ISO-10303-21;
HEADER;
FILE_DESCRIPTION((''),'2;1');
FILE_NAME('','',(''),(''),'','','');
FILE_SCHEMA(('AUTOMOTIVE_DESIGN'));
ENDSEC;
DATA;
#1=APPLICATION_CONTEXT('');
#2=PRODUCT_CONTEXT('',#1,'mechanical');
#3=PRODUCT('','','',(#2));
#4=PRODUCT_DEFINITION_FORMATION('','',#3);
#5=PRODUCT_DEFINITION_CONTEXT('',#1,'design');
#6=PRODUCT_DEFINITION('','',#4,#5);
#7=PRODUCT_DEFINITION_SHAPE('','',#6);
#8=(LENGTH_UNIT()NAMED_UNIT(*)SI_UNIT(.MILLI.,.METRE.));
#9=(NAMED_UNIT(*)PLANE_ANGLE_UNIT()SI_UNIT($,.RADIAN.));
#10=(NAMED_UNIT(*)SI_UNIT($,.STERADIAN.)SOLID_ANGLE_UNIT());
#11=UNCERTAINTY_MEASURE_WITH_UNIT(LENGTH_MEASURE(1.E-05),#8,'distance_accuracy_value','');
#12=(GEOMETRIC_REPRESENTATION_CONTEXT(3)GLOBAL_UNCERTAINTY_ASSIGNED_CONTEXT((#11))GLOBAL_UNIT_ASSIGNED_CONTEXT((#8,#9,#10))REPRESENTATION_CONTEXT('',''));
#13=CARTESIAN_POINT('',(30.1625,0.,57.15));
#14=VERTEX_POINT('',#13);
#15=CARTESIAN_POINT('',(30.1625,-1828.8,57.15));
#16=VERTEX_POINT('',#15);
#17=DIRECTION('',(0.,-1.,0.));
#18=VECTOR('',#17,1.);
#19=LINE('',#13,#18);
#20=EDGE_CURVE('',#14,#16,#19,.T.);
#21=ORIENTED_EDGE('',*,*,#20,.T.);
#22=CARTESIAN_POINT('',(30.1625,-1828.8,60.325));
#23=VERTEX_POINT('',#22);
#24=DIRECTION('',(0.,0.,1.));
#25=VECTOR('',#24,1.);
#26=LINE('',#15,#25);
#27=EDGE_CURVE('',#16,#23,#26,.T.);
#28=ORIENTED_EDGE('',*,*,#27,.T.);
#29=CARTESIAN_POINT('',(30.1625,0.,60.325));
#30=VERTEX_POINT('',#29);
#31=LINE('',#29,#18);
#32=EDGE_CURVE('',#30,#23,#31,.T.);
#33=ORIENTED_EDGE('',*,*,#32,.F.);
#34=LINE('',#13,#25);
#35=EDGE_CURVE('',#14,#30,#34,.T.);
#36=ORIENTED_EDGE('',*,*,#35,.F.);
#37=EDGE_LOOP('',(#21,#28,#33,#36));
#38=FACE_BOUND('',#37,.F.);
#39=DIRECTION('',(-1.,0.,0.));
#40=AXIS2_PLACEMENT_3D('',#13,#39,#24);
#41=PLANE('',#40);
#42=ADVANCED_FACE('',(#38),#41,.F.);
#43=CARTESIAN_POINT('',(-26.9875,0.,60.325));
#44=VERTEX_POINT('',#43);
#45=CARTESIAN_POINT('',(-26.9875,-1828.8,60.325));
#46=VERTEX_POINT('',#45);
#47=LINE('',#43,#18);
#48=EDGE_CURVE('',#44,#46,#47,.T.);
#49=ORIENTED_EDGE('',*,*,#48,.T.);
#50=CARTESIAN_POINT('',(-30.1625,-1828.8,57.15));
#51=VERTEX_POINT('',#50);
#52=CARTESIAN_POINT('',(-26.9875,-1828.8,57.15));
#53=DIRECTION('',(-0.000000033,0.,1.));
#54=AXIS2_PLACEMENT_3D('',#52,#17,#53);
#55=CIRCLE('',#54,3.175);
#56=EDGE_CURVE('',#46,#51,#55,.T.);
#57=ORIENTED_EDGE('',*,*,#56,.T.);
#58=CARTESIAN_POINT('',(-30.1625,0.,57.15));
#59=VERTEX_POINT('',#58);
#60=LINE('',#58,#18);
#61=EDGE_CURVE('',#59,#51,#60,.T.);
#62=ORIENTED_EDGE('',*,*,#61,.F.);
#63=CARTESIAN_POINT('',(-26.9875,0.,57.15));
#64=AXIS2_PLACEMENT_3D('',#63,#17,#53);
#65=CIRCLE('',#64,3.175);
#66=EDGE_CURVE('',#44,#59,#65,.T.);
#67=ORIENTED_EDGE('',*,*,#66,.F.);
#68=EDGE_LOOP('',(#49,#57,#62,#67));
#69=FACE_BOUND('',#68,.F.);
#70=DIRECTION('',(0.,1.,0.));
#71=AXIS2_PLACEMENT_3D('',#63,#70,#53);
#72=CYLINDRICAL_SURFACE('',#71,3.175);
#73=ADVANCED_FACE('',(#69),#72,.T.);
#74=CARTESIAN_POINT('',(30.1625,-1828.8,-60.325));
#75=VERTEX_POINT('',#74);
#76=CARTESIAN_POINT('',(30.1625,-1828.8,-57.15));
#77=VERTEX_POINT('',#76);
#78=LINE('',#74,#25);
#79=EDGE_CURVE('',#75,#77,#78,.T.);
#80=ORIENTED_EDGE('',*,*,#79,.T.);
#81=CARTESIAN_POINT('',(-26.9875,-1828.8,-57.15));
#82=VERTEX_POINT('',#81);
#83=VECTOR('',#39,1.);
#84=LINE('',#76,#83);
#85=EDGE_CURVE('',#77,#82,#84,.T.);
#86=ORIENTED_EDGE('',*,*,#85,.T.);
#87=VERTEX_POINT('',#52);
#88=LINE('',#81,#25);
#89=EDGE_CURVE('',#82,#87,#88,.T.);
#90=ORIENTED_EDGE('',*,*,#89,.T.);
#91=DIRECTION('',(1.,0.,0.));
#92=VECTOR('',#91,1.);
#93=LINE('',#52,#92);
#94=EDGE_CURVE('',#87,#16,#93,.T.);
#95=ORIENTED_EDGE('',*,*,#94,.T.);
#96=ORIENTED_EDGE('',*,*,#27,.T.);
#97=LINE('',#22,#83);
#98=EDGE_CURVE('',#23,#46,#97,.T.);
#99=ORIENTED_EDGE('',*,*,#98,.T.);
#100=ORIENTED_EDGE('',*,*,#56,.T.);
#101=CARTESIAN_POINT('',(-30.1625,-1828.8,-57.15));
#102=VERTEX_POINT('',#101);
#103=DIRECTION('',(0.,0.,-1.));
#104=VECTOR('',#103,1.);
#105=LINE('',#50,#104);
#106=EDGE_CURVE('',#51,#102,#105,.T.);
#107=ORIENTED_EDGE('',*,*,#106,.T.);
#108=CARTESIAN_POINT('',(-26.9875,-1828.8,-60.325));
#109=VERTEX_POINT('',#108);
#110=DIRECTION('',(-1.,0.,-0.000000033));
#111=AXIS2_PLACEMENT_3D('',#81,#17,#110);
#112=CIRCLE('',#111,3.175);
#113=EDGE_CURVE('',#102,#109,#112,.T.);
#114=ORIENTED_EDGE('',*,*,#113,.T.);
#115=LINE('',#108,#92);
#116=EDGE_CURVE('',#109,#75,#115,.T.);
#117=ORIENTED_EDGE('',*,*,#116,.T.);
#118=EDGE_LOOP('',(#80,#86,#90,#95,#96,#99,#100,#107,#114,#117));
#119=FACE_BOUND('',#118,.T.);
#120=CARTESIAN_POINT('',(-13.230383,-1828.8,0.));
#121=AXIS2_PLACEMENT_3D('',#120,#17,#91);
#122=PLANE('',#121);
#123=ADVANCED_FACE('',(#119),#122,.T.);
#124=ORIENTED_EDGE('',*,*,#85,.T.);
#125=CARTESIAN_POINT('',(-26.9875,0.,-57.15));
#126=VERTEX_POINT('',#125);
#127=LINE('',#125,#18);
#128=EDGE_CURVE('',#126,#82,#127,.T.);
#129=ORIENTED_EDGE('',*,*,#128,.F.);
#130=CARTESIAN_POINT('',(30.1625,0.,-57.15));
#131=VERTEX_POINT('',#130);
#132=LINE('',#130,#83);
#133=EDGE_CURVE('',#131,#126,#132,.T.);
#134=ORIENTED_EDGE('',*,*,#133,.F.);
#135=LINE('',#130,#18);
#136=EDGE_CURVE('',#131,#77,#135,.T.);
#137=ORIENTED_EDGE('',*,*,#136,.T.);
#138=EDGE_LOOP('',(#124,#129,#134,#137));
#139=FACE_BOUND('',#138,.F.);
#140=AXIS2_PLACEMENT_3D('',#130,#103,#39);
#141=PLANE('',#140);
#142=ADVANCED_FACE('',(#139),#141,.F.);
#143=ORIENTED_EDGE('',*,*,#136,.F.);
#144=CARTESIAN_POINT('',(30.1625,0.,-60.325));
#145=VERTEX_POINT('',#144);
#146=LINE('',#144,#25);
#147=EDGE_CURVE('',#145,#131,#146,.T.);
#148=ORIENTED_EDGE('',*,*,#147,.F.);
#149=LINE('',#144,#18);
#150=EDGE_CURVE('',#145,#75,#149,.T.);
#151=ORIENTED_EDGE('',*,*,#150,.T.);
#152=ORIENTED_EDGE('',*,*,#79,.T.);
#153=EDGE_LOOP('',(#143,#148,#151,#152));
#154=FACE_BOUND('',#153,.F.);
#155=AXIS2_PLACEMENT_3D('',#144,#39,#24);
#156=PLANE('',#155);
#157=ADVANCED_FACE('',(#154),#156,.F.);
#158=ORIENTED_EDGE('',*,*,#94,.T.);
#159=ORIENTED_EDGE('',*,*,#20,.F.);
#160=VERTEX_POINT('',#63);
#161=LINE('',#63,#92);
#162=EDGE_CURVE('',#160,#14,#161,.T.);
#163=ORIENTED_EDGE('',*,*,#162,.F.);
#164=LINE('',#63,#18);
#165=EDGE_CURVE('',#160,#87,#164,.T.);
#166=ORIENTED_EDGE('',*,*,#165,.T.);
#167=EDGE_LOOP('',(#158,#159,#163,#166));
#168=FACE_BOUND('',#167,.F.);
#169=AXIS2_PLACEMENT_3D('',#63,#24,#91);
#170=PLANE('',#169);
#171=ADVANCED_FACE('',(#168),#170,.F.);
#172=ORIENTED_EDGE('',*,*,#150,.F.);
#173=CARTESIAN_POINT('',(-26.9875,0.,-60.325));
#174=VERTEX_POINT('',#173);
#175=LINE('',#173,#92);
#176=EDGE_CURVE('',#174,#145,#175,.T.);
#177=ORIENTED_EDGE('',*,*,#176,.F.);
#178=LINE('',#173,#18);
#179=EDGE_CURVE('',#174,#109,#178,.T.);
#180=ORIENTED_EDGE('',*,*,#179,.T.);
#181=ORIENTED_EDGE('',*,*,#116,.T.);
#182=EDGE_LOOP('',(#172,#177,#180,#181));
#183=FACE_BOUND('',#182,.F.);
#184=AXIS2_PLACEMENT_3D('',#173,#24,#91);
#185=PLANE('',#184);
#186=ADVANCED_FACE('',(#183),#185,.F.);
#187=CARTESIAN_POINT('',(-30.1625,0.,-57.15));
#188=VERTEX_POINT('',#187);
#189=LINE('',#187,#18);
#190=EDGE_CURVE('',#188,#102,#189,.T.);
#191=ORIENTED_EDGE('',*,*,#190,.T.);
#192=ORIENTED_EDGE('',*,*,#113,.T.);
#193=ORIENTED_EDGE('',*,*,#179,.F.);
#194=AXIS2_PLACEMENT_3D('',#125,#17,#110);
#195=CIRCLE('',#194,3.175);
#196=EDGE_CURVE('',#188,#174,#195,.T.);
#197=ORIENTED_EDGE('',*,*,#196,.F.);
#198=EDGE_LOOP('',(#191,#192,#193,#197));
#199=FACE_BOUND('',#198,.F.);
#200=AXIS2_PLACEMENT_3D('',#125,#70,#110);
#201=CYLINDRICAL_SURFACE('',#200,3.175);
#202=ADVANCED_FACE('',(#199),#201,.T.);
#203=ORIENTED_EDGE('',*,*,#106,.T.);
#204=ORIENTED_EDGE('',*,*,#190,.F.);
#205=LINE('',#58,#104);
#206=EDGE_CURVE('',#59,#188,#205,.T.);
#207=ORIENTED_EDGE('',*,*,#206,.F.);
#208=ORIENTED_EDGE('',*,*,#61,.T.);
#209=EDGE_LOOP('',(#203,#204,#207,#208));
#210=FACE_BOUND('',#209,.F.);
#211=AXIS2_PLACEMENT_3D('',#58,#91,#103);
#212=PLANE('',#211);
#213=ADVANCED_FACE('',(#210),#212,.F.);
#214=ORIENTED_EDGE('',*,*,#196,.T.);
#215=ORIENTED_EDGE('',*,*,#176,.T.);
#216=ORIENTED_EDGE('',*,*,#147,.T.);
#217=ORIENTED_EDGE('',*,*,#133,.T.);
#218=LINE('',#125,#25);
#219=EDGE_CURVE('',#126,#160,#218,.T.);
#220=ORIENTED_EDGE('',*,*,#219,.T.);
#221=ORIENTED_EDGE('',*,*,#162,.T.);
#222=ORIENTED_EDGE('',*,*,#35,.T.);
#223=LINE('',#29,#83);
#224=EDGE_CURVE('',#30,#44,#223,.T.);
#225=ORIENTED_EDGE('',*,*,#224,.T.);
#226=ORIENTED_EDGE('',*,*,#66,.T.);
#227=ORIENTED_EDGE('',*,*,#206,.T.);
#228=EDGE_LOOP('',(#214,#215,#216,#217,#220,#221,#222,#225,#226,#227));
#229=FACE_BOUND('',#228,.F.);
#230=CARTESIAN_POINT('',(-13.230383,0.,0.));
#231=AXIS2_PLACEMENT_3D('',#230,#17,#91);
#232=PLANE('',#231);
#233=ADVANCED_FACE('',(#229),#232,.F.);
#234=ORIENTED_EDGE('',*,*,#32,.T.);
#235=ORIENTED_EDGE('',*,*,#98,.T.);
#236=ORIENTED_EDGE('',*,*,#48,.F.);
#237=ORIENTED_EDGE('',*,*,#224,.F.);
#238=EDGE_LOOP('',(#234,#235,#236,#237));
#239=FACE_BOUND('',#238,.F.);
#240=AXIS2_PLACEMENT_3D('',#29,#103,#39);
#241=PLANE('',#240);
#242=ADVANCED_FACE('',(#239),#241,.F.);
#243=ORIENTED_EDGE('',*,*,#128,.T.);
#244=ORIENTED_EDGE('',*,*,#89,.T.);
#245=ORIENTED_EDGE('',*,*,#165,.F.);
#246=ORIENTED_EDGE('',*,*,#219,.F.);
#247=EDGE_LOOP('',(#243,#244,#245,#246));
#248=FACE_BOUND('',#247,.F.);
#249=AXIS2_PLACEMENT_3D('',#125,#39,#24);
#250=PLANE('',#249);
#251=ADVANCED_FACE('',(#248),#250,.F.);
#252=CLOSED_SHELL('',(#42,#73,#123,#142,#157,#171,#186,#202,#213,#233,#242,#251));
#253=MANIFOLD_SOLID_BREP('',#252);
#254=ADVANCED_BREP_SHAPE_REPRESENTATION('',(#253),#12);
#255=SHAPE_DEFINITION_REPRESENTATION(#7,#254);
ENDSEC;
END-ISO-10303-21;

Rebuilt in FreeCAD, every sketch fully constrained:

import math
import FreeCAD as App
import Part
import Sketcher
Q = App.Units.Quantity

doc = App.newDocument("Part")
params = doc.addObject("Spreadsheet::Sheet", "Params")
for row, (alias, value) in enumerate([
    ("sketch1_height", "4.5 in"),
    ("sketch1_radius", "0.125 in"),
    ("sketch1_width", "2.25 in"),
    ("pad1_length", "72 in"),
], start=1):
    params.set(f"A{row}", alias)
    params.set(f"B{row}", "=" + value)
    params.setAlias(f"B{row}", alias)

body = doc.addObject("PartDesign::Body", "Body")

sketch1 = body.newObject("Sketcher::SketchObject", "Sketch")
sketch1.AttachmentSupport = (doc.getObject("XZ_Plane"), [""])
sketch1.MapMode = "FlatFace"
sketch1.addGeometry(Part.LineSegment(App.Vector(30.2, 57.1, 0), App.Vector(30.2, 60.3, 0)), False)
sketch1.addGeometry(Part.LineSegment(App.Vector(30.2, 60.3, 0), App.Vector(-27, 60.3, 0)), False)
sketch1.addGeometry(Part.ArcOfCircle(Part.Circle(App.Vector(-27, 57.1, 0), App.Vector(0, 0, 1), 3.2), math.radians(90), math.radians(180)), False)
sketch1.addGeometry(Part.LineSegment(App.Vector(-30.2, 57.1, 0), App.Vector(-30.2, -57.1, 0)), False)
sketch1.addGeometry(Part.ArcOfCircle(Part.Circle(App.Vector(-27, -57.1, 0), App.Vector(0, 0, 1), 3.2), math.radians(-180), math.radians(-90)), False)
sketch1.addGeometry(Part.LineSegment(App.Vector(-27, -60.3, 0), App.Vector(30.2, -60.3, 0)), False)
sketch1.addGeometry(Part.LineSegment(App.Vector(30.2, -60.3, 0), App.Vector(30.2, -57.1, 0)), False)
sketch1.addGeometry(Part.LineSegment(App.Vector(30.2, -57.1, 0), App.Vector(-27, -57.1, 0)), False)
sketch1.addGeometry(Part.LineSegment(App.Vector(-27, -57.1, 0), App.Vector(-27, 57.1, 0)), False)
sketch1.addGeometry(Part.LineSegment(App.Vector(-27, 57.1, 0), App.Vector(30.2, 57.1, 0)), False)
sketch1.addConstraint(Sketcher.Constraint("Coincident", 0, 2, 1, 1))
sketch1.addConstraint(Sketcher.Constraint("Tangent", 1, 2, 2, 1))
sketch1.addConstraint(Sketcher.Constraint("Tangent", 2, 2, 3, 1))
sketch1.addConstraint(Sketcher.Constraint("Tangent", 3, 2, 4, 1))
sketch1.addConstraint(Sketcher.Constraint("Tangent", 4, 2, 5, 1))
sketch1.addConstraint(Sketcher.Constraint("Coincident", 5, 2, 6, 1))
sketch1.addConstraint(Sketcher.Constraint("Coincident", 6, 2, 7, 1))
sketch1.addConstraint(Sketcher.Constraint("Coincident", 7, 2, 8, 1))
sketch1.addConstraint(Sketcher.Constraint("Coincident", 8, 2, 9, 1))
sketch1.addConstraint(Sketcher.Constraint("Coincident", 9, 2, 0, 1))
sketch1.addConstraint(Sketcher.Constraint("Vertical", 0))
sketch1.addConstraint(Sketcher.Constraint("Horizontal", 1))
sketch1.addConstraint(Sketcher.Constraint("Vertical", 3))
sketch1.addConstraint(Sketcher.Constraint("Horizontal", 5))
sketch1.addConstraint(Sketcher.Constraint("Vertical", 6))
sketch1.addConstraint(Sketcher.Constraint("Horizontal", 7))
sketch1.addConstraint(Sketcher.Constraint("Vertical", 8))
sketch1.addConstraint(Sketcher.Constraint("Horizontal", 9))
sketch1.addConstraint(Sketcher.Constraint("Coincident", 7, 2, 4, 3))
sketch1.addConstraint(Sketcher.Constraint("Coincident", 8, 2, 2, 3))
sketch1.addConstraint(Sketcher.Constraint("Symmetric", 2, 2, 6, 2, -1, 1))
sketch1.addConstraint(Sketcher.Constraint("Vertical", 0, 2, 5, 2))
sketch1.addConstraint(Sketcher.Constraint("DistanceY", 3, 2, 3, 1, Q("4.5 in")))
sketch1.addConstraint(Sketcher.Constraint("Radius", 2, Q("0.125 in")))
sketch1.addConstraint(Sketcher.Constraint("DistanceX", 1, 2, 1, 1, Q("2.25 in")))
sketch1.setExpression("Constraints[22]", "Params.sketch1_height")
sketch1.setExpression("Constraints[23]", "Params.sketch1_radius")
sketch1.setExpression("Constraints[24]", "Params.sketch1_width")
pad1 = body.newObject("PartDesign::Pad", "Pad")
pad1.Profile = sketch1
pad1.setExpression("Length", "Params.pad1_length")

doc.recompute()
